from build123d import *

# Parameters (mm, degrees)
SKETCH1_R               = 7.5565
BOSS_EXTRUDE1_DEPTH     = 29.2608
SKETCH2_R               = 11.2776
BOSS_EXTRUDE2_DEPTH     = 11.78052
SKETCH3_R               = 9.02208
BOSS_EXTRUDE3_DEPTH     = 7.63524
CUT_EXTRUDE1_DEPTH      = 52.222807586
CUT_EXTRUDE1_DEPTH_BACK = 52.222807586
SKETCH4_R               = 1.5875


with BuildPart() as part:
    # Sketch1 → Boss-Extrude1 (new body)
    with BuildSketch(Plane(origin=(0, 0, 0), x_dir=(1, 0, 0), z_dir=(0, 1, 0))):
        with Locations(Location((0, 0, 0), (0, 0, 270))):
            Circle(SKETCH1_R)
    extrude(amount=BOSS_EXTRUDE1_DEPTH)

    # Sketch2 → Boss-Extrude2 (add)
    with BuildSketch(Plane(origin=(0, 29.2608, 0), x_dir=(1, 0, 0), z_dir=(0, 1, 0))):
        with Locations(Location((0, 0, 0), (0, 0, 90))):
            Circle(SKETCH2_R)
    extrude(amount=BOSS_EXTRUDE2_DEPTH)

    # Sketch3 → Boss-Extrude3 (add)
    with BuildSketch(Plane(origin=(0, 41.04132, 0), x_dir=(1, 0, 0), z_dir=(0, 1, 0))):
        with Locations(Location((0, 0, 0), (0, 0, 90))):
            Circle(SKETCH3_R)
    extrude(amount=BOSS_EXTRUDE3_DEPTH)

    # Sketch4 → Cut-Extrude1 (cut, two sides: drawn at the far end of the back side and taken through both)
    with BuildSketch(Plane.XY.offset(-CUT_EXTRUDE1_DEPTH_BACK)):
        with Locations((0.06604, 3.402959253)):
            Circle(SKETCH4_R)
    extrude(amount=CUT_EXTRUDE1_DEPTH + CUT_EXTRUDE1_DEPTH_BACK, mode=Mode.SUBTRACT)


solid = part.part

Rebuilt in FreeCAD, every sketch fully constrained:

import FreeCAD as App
import Part
import Sketcher
Q = App.Units.Quantity

doc = App.newDocument("Part")
body = doc.addObject("PartDesign::Body", "Body")

# Sketch on XZ plane
sketch1 = body.newObject("Sketcher::SketchObject", "Sketch")
sketch1.AttachmentSupport = (doc.getObject("XZ_Plane"), [""])
sketch1.MapMode = "FlatFace"
sketch1.addGeometry(Part.Circle(App.Vector(0, 0, 0), App.Vector(0, 0, 1), 8), False)
sketch1.addConstraint([
    Sketcher.Constraint("Coincident", 0, 3, -1, 1),
    Sketcher.Constraint("Diameter", 0, Q("0.595 in")),
])
pad1 = body.newObject("PartDesign::Pad", "Pad")
pad1.Profile = sketch1
pad1.Length = Q("1.152 in")
pad1.Reversed = True

# Sketch on XZ plane
sketch2 = body.newObject("Sketcher::SketchObject", "Sketch001")
sketch2.AttachmentSupport = (doc.getObject("XZ_Plane"), [""])
sketch2.MapMode = "FlatFace"
sketch2.AttachmentOffset = App.Placement(App.Vector(0, 0, -1.152 * 25.4), App.Rotation())
sketch2.addGeometry(Part.Circle(App.Vector(0, 0, 0), App.Vector(0, 0, 1), 11), False)
sketch2.addConstraint([
    Sketcher.Constraint("Coincident", 0, 3, -1, 1),
    Sketcher.Constraint("Diameter", 0, Q("0.888 in")),
])
pad2 = body.newObject("PartDesign::Pad", "Pad001")
pad2.Profile = sketch2
pad2.Length = Q("0.4638 in")
pad2.Reversed = True

# Sketch on XZ plane
sketch3 = body.newObject("Sketcher::SketchObject", "Sketch002")
sketch3.AttachmentSupport = (doc.getObject("XZ_Plane"), [""])
sketch3.MapMode = "FlatFace"
sketch3.AttachmentOffset = App.Placement(App.Vector(0, 0, -1.6158 * 25.4), App.Rotation())
sketch3.addGeometry(Part.Circle(App.Vector(0, 0, 0), App.Vector(0, 0, 1), 9), False)
sketch3.addConstraint([
    Sketcher.Constraint("Coincident", 0, 3, -1, 1),
    Sketcher.Constraint("Diameter", 0, Q("0.7104 in")),
])
pad3 = body.newObject("PartDesign::Pad", "Pad002")
pad3.Profile = sketch3
pad3.Length = Q("0.3006 in")
pad3.Reversed = True

# Sketch on XY plane
sketch4 = body.newObject("Sketcher::SketchObject", "Sketch003")
sketch4.AttachmentSupport = (doc.getObject("XY_Plane"), [""])
sketch4.MapMode = "FlatFace"
sketch4.addGeometry(Part.Circle(App.Vector(0.1, 3.4, 0), App.Vector(0, 0, 1), 1.6), False)
sketch4.addConstraint([
    Sketcher.Constraint("Diameter", 0, Q("0.125 in")),
    Sketcher.Constraint("DistanceX", -1, 1, 0, 3, Q("0.0026 in")),
    Sketcher.Constraint("DistanceY", -1, 1, 0, 3, 3.402959),
])
pocket1 = body.newObject("PartDesign::Pocket", "Pocket")
pocket1.Profile = sketch4
pocket1.Type = "ThroughAll"
pocket1.Midplane = True

doc.recompute()
